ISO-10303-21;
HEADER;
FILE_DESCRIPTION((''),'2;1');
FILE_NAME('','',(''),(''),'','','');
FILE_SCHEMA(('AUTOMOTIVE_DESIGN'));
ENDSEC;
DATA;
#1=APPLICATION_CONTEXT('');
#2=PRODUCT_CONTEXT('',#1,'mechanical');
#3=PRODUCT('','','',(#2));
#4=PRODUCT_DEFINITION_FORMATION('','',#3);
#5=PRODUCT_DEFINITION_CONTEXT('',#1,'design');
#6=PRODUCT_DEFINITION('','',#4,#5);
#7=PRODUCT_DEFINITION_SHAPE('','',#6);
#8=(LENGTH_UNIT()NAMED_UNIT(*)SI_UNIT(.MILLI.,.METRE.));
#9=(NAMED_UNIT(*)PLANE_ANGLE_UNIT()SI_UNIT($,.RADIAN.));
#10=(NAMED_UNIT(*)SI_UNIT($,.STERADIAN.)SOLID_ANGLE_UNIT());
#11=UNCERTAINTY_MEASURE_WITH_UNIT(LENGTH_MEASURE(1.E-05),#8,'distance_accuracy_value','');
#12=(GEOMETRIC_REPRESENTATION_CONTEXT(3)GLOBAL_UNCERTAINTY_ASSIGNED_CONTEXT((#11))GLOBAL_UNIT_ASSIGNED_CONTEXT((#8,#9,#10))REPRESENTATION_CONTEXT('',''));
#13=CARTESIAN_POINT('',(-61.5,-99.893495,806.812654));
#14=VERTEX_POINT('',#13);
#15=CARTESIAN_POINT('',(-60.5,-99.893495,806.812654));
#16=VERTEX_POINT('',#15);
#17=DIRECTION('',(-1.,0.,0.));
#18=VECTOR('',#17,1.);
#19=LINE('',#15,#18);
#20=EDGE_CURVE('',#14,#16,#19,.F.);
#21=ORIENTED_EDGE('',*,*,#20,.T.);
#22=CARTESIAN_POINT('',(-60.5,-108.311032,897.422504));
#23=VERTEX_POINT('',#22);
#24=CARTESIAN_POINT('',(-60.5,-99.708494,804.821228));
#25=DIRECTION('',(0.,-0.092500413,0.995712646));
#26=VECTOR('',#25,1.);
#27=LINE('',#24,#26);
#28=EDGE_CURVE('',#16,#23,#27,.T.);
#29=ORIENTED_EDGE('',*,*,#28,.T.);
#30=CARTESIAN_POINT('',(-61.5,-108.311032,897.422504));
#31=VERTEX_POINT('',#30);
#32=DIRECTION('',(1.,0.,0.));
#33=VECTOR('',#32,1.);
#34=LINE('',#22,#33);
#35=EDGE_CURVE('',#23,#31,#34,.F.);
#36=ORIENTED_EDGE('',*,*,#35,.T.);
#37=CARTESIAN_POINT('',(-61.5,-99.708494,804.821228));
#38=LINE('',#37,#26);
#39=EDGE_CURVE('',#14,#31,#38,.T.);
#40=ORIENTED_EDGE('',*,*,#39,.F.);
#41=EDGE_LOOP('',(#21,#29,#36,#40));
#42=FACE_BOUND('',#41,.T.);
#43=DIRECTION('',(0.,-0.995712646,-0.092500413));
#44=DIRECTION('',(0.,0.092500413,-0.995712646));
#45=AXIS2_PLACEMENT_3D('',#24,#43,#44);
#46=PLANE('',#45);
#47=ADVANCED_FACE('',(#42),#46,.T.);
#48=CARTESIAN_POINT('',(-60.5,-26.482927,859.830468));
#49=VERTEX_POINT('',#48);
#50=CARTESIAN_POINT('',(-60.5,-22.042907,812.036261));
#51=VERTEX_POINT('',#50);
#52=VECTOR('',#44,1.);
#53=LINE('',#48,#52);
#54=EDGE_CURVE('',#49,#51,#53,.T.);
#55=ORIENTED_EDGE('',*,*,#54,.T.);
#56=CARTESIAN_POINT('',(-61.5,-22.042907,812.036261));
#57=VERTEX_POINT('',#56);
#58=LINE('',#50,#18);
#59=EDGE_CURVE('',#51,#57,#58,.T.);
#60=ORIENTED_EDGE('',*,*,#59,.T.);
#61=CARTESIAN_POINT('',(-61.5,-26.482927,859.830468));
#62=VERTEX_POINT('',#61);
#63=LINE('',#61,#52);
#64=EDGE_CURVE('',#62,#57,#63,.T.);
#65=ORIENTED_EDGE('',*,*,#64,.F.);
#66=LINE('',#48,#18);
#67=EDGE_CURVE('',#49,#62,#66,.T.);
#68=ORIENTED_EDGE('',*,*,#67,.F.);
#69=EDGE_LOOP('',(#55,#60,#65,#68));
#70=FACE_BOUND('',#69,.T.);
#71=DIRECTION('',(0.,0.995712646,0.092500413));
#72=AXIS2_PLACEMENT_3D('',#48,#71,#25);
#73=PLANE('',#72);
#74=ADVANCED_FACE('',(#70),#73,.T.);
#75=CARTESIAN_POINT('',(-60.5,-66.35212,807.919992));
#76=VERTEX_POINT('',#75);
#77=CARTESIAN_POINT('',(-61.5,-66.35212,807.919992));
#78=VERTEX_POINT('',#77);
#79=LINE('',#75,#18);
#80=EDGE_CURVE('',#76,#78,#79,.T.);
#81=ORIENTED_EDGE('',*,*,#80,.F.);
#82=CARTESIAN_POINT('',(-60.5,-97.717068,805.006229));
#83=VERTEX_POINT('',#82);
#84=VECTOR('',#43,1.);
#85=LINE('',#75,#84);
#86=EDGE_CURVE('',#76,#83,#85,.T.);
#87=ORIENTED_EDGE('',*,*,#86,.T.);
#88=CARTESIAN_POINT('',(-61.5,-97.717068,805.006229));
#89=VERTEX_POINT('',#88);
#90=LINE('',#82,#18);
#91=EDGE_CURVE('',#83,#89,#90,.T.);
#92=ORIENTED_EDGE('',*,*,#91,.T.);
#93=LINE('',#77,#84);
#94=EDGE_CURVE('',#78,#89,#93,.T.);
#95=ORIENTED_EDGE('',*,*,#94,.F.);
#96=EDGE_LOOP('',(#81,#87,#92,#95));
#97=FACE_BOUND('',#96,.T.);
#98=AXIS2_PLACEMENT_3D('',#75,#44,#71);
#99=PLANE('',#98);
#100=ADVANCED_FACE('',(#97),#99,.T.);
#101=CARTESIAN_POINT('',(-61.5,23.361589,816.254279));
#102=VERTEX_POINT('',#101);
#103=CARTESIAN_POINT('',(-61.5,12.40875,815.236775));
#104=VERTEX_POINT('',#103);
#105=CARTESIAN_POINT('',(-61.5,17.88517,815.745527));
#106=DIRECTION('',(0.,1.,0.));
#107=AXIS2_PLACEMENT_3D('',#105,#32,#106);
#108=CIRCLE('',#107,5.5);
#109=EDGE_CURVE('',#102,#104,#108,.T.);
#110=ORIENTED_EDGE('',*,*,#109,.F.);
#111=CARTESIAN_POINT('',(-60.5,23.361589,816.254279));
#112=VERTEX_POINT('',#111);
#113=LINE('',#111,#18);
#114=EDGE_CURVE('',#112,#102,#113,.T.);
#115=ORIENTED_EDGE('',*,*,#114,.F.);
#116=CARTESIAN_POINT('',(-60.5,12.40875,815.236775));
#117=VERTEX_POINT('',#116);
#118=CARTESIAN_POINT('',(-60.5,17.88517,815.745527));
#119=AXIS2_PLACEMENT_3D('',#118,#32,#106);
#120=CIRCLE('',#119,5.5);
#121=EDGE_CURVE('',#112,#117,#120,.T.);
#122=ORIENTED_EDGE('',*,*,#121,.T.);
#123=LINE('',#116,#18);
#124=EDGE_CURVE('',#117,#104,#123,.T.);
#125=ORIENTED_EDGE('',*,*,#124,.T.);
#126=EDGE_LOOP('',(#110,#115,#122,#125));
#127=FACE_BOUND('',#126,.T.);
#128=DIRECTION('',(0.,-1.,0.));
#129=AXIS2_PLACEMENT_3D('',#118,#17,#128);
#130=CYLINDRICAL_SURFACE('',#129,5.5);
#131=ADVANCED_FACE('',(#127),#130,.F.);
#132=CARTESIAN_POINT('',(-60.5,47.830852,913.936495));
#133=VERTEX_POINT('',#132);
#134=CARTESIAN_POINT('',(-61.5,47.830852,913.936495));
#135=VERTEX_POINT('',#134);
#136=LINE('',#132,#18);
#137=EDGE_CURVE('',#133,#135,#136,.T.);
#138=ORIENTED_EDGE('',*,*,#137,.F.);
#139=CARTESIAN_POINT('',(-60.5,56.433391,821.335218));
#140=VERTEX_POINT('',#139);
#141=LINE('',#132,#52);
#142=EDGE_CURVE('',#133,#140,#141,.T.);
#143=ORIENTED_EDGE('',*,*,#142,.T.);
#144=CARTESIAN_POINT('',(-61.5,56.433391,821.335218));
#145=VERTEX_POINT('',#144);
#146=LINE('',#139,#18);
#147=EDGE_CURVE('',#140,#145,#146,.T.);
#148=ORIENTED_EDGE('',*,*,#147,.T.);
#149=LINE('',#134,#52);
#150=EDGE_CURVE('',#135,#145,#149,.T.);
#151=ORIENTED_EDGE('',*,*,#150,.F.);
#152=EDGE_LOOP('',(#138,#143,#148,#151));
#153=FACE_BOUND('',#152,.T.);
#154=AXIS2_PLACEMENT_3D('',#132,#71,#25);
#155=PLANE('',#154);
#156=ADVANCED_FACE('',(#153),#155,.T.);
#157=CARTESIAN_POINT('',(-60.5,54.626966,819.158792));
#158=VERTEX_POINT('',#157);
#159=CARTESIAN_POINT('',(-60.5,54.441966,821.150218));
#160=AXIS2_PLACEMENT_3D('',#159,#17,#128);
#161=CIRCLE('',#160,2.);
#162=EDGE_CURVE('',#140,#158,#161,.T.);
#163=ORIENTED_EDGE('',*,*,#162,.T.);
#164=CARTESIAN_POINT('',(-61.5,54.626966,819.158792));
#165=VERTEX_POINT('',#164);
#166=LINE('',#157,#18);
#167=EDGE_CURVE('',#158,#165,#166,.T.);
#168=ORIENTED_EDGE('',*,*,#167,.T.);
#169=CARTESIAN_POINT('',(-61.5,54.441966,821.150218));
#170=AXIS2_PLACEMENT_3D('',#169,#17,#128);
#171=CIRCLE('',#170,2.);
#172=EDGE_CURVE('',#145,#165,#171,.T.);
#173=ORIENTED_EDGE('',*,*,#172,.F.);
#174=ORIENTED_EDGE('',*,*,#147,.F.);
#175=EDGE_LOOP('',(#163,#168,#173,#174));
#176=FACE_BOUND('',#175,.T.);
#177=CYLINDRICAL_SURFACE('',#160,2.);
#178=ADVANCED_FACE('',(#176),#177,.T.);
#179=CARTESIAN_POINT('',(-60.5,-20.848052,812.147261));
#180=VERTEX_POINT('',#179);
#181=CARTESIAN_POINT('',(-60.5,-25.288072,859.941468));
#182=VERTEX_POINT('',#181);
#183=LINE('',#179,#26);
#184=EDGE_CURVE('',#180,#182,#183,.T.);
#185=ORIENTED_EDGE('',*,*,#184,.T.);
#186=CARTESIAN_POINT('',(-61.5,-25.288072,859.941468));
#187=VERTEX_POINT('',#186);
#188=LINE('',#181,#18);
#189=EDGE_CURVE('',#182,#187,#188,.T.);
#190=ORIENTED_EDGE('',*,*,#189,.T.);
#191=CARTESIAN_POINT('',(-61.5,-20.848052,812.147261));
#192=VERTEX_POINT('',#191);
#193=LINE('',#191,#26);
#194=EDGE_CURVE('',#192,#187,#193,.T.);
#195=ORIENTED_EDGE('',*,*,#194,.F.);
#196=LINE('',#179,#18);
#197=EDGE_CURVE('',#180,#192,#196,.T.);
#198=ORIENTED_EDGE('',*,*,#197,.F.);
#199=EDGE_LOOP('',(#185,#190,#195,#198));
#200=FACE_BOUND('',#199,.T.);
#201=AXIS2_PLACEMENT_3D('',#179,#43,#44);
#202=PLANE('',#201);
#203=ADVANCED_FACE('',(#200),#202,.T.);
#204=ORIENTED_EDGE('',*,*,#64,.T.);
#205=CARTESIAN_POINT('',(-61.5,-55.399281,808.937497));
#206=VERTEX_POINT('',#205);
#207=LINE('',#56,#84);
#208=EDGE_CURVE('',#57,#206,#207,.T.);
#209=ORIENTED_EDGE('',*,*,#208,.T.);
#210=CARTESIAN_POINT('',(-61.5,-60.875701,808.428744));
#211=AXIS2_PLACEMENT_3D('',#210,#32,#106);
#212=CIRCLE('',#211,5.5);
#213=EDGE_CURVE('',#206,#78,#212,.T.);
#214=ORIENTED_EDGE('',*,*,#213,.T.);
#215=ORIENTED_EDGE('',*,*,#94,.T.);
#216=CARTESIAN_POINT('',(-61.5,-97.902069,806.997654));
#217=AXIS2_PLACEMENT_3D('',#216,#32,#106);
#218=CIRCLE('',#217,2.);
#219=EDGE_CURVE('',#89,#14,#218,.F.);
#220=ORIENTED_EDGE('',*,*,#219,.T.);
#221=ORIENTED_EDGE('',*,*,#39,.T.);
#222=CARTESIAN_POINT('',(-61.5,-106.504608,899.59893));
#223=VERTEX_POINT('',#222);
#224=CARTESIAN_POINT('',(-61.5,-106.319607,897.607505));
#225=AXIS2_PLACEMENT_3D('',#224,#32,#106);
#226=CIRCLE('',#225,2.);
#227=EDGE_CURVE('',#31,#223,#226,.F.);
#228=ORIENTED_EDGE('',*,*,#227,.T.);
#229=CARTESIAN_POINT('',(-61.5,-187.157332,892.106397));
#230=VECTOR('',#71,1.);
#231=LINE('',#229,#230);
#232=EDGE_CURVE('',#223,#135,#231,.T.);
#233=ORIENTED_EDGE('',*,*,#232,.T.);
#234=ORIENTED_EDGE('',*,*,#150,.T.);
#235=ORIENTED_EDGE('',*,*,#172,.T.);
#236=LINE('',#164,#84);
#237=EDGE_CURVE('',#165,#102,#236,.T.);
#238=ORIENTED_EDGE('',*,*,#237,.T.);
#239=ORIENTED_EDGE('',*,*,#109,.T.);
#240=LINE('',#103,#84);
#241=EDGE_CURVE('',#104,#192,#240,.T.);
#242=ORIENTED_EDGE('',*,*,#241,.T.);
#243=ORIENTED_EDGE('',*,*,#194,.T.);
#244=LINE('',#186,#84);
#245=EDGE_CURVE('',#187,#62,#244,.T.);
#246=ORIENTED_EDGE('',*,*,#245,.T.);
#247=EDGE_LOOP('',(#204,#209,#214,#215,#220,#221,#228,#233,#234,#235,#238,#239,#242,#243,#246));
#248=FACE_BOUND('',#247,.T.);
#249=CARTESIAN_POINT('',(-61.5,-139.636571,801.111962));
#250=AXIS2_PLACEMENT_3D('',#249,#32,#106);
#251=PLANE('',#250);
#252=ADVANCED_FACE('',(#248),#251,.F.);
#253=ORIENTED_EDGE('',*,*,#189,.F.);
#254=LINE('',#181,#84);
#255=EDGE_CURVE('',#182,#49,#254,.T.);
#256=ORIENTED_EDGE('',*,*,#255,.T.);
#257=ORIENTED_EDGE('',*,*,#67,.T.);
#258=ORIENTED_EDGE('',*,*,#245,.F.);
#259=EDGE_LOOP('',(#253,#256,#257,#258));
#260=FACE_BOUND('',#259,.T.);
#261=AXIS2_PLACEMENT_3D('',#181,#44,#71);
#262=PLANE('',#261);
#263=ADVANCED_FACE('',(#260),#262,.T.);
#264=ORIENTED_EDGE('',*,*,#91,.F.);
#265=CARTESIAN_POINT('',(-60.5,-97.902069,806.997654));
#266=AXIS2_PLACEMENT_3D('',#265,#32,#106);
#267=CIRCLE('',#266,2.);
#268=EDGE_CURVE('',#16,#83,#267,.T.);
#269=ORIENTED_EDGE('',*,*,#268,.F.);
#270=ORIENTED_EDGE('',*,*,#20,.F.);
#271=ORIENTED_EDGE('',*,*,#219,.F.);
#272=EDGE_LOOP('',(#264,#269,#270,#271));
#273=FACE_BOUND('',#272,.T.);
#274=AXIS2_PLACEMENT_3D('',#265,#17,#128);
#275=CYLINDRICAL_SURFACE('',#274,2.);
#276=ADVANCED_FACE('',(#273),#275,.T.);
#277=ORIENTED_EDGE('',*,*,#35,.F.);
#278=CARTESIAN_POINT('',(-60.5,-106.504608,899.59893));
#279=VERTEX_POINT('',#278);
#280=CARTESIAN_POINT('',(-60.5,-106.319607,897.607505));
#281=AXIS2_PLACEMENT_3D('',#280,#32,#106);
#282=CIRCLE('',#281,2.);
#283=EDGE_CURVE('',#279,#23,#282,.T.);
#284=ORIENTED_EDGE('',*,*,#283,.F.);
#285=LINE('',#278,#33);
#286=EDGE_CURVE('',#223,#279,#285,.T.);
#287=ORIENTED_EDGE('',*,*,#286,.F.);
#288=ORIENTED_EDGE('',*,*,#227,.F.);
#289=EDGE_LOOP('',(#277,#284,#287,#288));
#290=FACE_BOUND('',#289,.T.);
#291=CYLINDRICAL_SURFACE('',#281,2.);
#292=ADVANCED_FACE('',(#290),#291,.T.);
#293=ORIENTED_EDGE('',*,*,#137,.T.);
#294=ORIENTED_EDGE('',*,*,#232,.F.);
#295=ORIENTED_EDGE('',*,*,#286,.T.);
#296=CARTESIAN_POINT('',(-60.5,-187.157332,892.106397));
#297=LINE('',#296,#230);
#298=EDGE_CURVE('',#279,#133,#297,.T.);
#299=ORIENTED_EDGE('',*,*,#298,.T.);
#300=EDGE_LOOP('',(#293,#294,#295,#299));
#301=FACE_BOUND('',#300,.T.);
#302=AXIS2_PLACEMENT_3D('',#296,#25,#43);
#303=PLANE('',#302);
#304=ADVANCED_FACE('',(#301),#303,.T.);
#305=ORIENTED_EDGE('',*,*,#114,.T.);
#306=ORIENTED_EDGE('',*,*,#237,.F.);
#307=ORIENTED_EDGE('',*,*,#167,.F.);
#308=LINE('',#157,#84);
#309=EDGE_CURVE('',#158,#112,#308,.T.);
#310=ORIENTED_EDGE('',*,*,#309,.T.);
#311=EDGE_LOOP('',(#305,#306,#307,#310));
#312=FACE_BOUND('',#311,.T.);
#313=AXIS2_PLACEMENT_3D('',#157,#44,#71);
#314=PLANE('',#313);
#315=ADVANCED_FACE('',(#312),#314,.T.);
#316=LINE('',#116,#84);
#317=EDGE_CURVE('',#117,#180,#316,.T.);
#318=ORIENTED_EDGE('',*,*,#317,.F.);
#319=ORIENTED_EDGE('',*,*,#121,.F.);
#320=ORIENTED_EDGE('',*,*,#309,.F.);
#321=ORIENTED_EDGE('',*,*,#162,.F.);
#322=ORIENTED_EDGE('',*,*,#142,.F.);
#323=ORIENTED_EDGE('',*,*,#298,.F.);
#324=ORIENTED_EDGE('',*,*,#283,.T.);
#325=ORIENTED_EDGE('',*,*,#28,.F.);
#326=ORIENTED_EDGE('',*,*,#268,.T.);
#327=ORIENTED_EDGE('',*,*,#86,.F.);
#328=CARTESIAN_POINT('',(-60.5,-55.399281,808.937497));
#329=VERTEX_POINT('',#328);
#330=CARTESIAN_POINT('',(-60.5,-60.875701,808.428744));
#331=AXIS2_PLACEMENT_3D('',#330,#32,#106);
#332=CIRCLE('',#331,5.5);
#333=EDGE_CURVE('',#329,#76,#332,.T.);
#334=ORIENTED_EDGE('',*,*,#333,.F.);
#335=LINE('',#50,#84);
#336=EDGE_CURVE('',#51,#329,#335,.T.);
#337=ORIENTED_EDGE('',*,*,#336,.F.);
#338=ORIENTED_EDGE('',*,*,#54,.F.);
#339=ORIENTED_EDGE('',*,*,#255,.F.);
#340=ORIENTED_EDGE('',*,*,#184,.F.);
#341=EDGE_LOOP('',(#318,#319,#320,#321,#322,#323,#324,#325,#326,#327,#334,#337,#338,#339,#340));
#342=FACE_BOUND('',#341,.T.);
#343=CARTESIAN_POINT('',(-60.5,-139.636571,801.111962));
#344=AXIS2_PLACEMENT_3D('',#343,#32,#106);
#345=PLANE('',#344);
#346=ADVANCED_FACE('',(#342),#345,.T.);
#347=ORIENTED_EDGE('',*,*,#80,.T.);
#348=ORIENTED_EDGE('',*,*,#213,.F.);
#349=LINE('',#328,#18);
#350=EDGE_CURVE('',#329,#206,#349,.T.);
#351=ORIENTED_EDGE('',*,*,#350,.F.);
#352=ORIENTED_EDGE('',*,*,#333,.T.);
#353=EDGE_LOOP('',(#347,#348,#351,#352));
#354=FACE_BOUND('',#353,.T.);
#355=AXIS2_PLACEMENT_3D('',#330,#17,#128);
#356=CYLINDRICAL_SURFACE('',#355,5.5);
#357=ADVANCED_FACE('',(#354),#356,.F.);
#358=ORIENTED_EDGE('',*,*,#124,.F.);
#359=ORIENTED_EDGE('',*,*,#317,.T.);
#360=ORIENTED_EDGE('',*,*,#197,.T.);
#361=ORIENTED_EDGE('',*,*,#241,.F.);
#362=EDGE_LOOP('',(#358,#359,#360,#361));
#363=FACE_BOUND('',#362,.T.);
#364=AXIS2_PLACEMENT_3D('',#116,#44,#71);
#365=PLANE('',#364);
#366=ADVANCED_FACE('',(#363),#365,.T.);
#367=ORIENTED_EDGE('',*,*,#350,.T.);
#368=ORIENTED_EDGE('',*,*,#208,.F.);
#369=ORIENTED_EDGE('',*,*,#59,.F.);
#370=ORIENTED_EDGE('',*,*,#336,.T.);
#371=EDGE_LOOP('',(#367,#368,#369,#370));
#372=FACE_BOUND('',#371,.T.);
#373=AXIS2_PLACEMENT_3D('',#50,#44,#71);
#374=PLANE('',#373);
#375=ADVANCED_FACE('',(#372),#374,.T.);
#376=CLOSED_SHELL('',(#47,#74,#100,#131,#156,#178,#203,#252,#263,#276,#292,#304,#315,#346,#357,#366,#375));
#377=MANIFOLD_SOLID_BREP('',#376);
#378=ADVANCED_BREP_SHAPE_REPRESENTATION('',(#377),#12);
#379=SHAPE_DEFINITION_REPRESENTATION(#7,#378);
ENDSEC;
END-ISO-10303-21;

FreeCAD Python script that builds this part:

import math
import FreeCAD as App
import Part
import Sketcher
from FreeCAD import Vector
Q = App.Units.Quantity


def edges_at(feature, points):
    """Names of the edges that pass closest to the given points."""
    edges = feature.Shape.Edges
    near = lambda p: min(range(len(edges)), key=lambda i: edges[i].distToShape(Part.Vertex(*p))[0])
    return sorted({f"Edge{near(p) + 1}" for p in points})


def add_polygon(sketch, points):
    """Adds a closed chain of lines whose ends are joined by coincident constraints."""
    first, n = sketch.GeometryCount, len(points)
    for a, b in zip(points, points[1:] + points[:1]):
        sketch.addGeometry(Part.LineSegment(App.Vector(*a, 0), App.Vector(*b, 0)), False)
    for i in range(n):
        sketch.addConstraint(Sketcher.Constraint("Coincident", first + i, 2, first + (i + 1) % n, 1))

doc = App.newDocument("Part")
body = doc.addObject("PartDesign::Body", "Body")

sketch1 = body.newObject("Sketcher::SketchObject", "Sketch")
sketch1.AttachmentSupport = (doc.getObject("YZ_Plane"), [""])
sketch1.MapMode = "FlatFace"
sketch1.AttachmentOffset = App.Placement(Vector(0, 0, -61.5), App.Rotation())
sketch1.addGeometry([
    Part.LineSegment(Vector(-145.11299, 800.603209, 0), Vector(-176.378368, 797.698696, 0)),
    Part.ArcOfCircle(Part.Circle(Vector(-176.563368, 799.690122, 0), Vector(0, 0, 1), 2), math.radians(-174.69253), math.radians(-84.69253)),
    Part.LineSegment(Vector(-178.554794, 799.505121, 0), Vector(-187.157332, 892.106397, 0)),
    Part.LineSegment(Vector(-187.157332, 892.106397, 0), Vector(47.830852, 913.936495, 0)),
    Part.LineSegment(Vector(47.830852, 913.936495, 0), Vector(56.433391, 821.335218, 0)),
    Part.ArcOfCircle(Part.Circle(Vector(54.441966, 821.150218, 0), Vector(0, 0, 1), 2), math.radians(-84.69253), math.radians(5.30747)),
    Part.LineSegment(Vector(54.626966, 819.158792, 0), Vector(23.361589, 816.254279, 0)),
    Part.ArcOfCircle(Part.Circle(Vector(17.88517, 815.745527, 0), Vector(0, 0, 1), 5.5), math.radians(5.30747), math.radians(185.30747)),
    Part.LineSegment(Vector(12.40875, 815.236775, 0), Vector(-20.848052, 812.147261, 0)),
    Part.LineSegment(Vector(-20.848052, 812.147261, 0), Vector(-25.288072, 859.941468, 0)),
    Part.LineSegment(Vector(-25.288072, 859.941468, 0), Vector(-26.482927, 859.830468, 0)),
    Part.LineSegment(Vector(-26.482927, 859.830468, 0), Vector(-22.042907, 812.036261, 0)),
    Part.LineSegment(Vector(-22.042907, 812.036261, 0), Vector(-55.399281, 808.937497, 0)),
    Part.ArcOfCircle(Part.Circle(Vector(-60.875701, 808.428744, 0), Vector(0, 0, 1), 5.5), math.radians(5.30747), math.radians(185.30747)),
    Part.LineSegment(Vector(-66.35212, 807.919992, 0), Vector(-99.708494, 804.821228, 0)),
    Part.LineSegment(Vector(-99.708494, 804.821228, 0), Vector(-104.148514, 852.615435, 0)),
    Part.LineSegment(Vector(-104.148514, 852.615435, 0), Vector(-105.343369, 852.504435, 0)),
    Part.LineSegment(Vector(-105.343369, 852.504435, 0), Vector(-100.903349, 804.710228, 0)),
    Part.LineSegment(Vector(-100.903349, 804.710228, 0), Vector(-134.160151, 801.620714, 0)),
    Part.ArcOfCircle(Part.Circle(Vector(-139.636571, 801.111962, 0), Vector(0, 0, 1), 5.5), math.radians(5.30747), math.radians(185.30747)),
], False)
sketch1.addConstraint([
    Sketcher.Constraint("Coincident", 0, 2, 1, 2),
    Sketcher.Constraint("Coincident", 1, 1, 2, 1),
    Sketcher.Constraint("Coincident", 2, 2, 3, 1),
    Sketcher.Constraint("Coincident", 3, 2, 4, 1),
    Sketcher.Constraint("Coincident", 4, 2, 5, 2),
    Sketcher.Constraint("Coincident", 5, 1, 6, 1),
    Sketcher.Constraint("Coincident", 6, 2, 7, 1),
    Sketcher.Constraint("Coincident", 7, 2, 8, 1),
    Sketcher.Constraint("Coincident", 8, 2, 9, 1),
    Sketcher.Constraint("Coincident", 9, 2, 10, 1),
    Sketcher.Constraint("Coincident", 10, 2, 11, 1),
    Sketcher.Constraint("Coincident", 11, 2, 12, 1),
    Sketcher.Constraint("Coincident", 12, 2, 13, 1),
    Sketcher.Constraint("Coincident", 13, 2, 14, 1),
    Sketcher.Constraint("Coincident", 14, 2, 15, 1),
    Sketcher.Constraint("Coincident", 15, 2, 16, 1),
    Sketcher.Constraint("Coincident", 16, 2, 17, 1),
    Sketcher.Constraint("Coincident", 17, 2, 18, 1),
    Sketcher.Constraint("Coincident", 18, 2, 19, 1),
    Sketcher.Constraint("Coincident", 19, 2, 0, 1),
    Sketcher.Constraint("Radius", 1, Q("2 mm")),
    Sketcher.Constraint("Radius", 5, Q("2 mm")),
    Sketcher.Constraint("Radius", 7, Q("5.5 mm")),
    Sketcher.Constraint("Radius", 13, Q("5.5 mm")),
    Sketcher.Constraint("Radius", 19, Q("5.5 mm")),
    Sketcher.Constraint("Distance", 2, Q("93 mm")),
    Sketcher.Constraint("Distance", 3, Q("236 mm")),
    Sketcher.Constraint("Distance", 4, Q("93 mm")),
    Sketcher.Constraint("Distance", 9, Q("48 mm")),
    Sketcher.Constraint("Distance", 11, Q("48 mm")),
    Sketcher.Constraint("Distance", 15, Q("48 mm")),
    Sketcher.Constraint("Distance", 17, Q("48 mm")),
    Sketcher.Constraint("Distance", 0, Q("31.4 mm")),
    Sketcher.Constraint("Distance", 6, Q("31.4 mm")),
    Sketcher.Constraint("Distance", 8, Q("33.4 mm")),
    Sketcher.Constraint("Distance", 10, Q("1.2 mm")),
    Sketcher.Constraint("Distance", 12, Q("33.5 mm")),
    Sketcher.Constraint("Distance", 14, Q("33.5 mm")),
    Sketcher.Constraint("Distance", 16, Q("1.2 mm")),
    Sketcher.Constraint("Distance", 18, Q("33.4 mm")),
    Sketcher.Constraint("DistanceX", 1, 3, 0, 2, Q("0.185001 mm")),
    Sketcher.Constraint("DistanceY", 1, 1, 1, 3, Q("0.185001 mm")),
    Sketcher.Constraint("DistanceY", 5, 3, 4, 2, Q("0.185001 mm")),
    Sketcher.Constraint("DistanceX", 5, 3, 5, 1, Q("0.185001 mm")),
    Sketcher.Constraint("DistanceY", 10, 2, 9, 2, Q("0.111 mm")),
    Sketcher.Constraint("DistanceY", 11, 2, 8, 2, Q("0.111 mm")),
    Sketcher.Constraint("DistanceY", 16, 2, 15, 2, Q("0.111 mm")),
    Sketcher.Constraint("DistanceY", 17, 2, 14, 2, Q("0.111 mm")),
    Sketcher.Constraint("DistanceX", 13, 3, -1, 1, Q("60.875701 mm")),
    Sketcher.Constraint("DistanceY", 0, 2, 2, 2, Q("94.407701 mm")),
    Sketcher.Constraint("DistanceX", 6, 2, 4, 2, Q("33.071802 mm")),
    Sketcher.Constraint("DistanceX", 1, 3, -1, 1, Q("176.563368 mm")),
    Sketcher.Constraint("DistanceY", -1, 1, 1, 3, Q("799.690122 mm")),
    Sketcher.Constraint("DistanceX", -1, 1, 7, 3, Q("17.88517 mm")),
    Sketcher.Constraint("DistanceX", 19, 3, -1, 1, Q("139.636571 mm")),
    Sketcher.Constraint("DistanceX", -1, 1, 4, 2, Q("56.433391 mm")),
    Sketcher.Constraint("DistanceX", -1, 1, 7, 2, Q("12.40875 mm")),
    Sketcher.Constraint("DistanceY", -1, 1, 8, 2, Q("812.147261 mm")),
    Sketcher.Constraint("DistanceY", -1, 1, 9, 2, Q("859.941468 mm")),
    Sketcher.Constraint("DistanceX", 12, 2, -1, 1, Q("55.399281 mm")),
    Sketcher.Constraint("DistanceX", 13, 2, -1, 1, Q("66.35212 mm")),
    Sketcher.Constraint("DistanceY", -1, 1, 14, 2, Q("804.821228 mm")),
    Sketcher.Constraint("DistanceX", 16, 2, -1, 1, Q("105.343369 mm")),
    Sketcher.Constraint("DistanceX", 18, 2, -1, 1, Q("134.160151 mm")),
    Sketcher.Constraint("DistanceX", 19, 2, -1, 1, Q("145.11299 mm")),
])
pad1 = body.newObject("PartDesign::Pad", "Pad")
pad1.Profile = sketch1
pad1.Length = 1

sketch2 = body.newObject("Sketcher::SketchObject", "Sketch001")
sketch2.AttachmentSupport = (doc.getObject("YZ_Plane"), [""])
sketch2.MapMode = "FlatFace"
sketch2.AttachmentOffset = App.Placement(Vector(0, 0, -60.5), App.Rotation())
add_polygon(sketch2, [(-100, 805), (-108, 899), (-187, 892), (-178, 798)])
sketch2.addConstraint([
    Sketcher.Constraint("Perpendicular", 0, 1),
    Sketcher.Constraint("Perpendicular", 1, 2),
    Sketcher.Constraint("Perpendicular", 2, 3),
    Sketcher.Constraint("Distance", 0, Q("95 mm")),
    Sketcher.Constraint("Distance", 1, Q("79 mm")),
    Sketcher.Constraint("DistanceX", 1, 2, 0, 2, Q("78.661299 mm")),
    Sketcher.Constraint("DistanceY", -1, 1, 0, 2, Q("899.41393 mm")),
    Sketcher.Constraint("DistanceX", 0, 2, -1, 1, Q("108.496033 mm")),
])
pocket1 = body.newObject("PartDesign::Pocket", "Pocket")
pocket1.Profile = sketch2
pocket1.Length = 10
doc.recompute()

fillet = body.newObject("PartDesign::Fillet", "Fillet")
fillet.Base = (pocket1, edges_at(pocket1, [(-61, -108.496, 899.414)]))
fillet.Radius = 2
doc.recompute()

fillet2 = body.newObject("PartDesign::Fillet", "Fillet001")
fillet2.Base = (fillet, edges_at(fillet, [(-61, -99.708, 804.821)]))
fillet2.Radius = 2

doc.recompute()
